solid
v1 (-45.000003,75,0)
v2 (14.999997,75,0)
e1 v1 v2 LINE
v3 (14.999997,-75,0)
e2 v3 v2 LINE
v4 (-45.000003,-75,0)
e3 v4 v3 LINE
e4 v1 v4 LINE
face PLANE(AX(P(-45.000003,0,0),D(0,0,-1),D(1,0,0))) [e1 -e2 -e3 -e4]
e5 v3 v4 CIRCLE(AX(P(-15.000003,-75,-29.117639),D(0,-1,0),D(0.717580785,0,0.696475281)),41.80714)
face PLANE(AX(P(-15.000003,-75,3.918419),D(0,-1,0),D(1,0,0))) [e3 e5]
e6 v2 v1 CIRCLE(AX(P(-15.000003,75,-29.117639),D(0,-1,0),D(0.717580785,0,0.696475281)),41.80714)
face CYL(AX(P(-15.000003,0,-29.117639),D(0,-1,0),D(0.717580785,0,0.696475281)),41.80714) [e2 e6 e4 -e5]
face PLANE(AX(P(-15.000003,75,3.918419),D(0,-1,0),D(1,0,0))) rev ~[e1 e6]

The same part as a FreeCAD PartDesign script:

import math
import FreeCAD as App
import Part
import Sketcher

V = App.Vector

doc = App.newDocument("Part")
body = doc.addObject("PartDesign::Body", "Body")

# Sketch on XZ plane
sketch1 = body.newObject("Sketcher::SketchObject", "Sketch")
sketch1.AttachmentSupport = (doc.getObject("XZ_Plane"), [""])
sketch1.MapMode = "FlatFace"
sketch1.addGeometry([
    Part.ArcOfCircle(Part.Circle(V(-15.000003, -29.117639, 0), V(0, 0, 1), 41.80714), math.radians(44.144895), math.radians(135.855105)),
    Part.LineSegment(V(-45.000003, 0, 0), V(14.999997, 0, 0)),
], False)
sketch1.addConstraint([
    Sketcher.Constraint("Coincident", 0, 1, 1, 2),
    Sketcher.Constraint("Coincident", 1, 1, 0, 2),
    Sketcher.Constraint("Horizontal", 1),
    Sketcher.Constraint("PointOnObject", 0, 1, -1),
    Sketcher.Constraint("DistanceX", 1, 1, 1, 2, 60.0),
    Sketcher.Constraint("Radius", 0, 41.80714),
    Sketcher.Constraint("DistanceX", 0, 3, -1, 1, 15.000003),
])
pad1 = body.newObject("PartDesign::Pad", "Pad")
pad1.Profile = sketch1
pad1.Length = 150
pad1.Midplane = True

doc.recompute()
